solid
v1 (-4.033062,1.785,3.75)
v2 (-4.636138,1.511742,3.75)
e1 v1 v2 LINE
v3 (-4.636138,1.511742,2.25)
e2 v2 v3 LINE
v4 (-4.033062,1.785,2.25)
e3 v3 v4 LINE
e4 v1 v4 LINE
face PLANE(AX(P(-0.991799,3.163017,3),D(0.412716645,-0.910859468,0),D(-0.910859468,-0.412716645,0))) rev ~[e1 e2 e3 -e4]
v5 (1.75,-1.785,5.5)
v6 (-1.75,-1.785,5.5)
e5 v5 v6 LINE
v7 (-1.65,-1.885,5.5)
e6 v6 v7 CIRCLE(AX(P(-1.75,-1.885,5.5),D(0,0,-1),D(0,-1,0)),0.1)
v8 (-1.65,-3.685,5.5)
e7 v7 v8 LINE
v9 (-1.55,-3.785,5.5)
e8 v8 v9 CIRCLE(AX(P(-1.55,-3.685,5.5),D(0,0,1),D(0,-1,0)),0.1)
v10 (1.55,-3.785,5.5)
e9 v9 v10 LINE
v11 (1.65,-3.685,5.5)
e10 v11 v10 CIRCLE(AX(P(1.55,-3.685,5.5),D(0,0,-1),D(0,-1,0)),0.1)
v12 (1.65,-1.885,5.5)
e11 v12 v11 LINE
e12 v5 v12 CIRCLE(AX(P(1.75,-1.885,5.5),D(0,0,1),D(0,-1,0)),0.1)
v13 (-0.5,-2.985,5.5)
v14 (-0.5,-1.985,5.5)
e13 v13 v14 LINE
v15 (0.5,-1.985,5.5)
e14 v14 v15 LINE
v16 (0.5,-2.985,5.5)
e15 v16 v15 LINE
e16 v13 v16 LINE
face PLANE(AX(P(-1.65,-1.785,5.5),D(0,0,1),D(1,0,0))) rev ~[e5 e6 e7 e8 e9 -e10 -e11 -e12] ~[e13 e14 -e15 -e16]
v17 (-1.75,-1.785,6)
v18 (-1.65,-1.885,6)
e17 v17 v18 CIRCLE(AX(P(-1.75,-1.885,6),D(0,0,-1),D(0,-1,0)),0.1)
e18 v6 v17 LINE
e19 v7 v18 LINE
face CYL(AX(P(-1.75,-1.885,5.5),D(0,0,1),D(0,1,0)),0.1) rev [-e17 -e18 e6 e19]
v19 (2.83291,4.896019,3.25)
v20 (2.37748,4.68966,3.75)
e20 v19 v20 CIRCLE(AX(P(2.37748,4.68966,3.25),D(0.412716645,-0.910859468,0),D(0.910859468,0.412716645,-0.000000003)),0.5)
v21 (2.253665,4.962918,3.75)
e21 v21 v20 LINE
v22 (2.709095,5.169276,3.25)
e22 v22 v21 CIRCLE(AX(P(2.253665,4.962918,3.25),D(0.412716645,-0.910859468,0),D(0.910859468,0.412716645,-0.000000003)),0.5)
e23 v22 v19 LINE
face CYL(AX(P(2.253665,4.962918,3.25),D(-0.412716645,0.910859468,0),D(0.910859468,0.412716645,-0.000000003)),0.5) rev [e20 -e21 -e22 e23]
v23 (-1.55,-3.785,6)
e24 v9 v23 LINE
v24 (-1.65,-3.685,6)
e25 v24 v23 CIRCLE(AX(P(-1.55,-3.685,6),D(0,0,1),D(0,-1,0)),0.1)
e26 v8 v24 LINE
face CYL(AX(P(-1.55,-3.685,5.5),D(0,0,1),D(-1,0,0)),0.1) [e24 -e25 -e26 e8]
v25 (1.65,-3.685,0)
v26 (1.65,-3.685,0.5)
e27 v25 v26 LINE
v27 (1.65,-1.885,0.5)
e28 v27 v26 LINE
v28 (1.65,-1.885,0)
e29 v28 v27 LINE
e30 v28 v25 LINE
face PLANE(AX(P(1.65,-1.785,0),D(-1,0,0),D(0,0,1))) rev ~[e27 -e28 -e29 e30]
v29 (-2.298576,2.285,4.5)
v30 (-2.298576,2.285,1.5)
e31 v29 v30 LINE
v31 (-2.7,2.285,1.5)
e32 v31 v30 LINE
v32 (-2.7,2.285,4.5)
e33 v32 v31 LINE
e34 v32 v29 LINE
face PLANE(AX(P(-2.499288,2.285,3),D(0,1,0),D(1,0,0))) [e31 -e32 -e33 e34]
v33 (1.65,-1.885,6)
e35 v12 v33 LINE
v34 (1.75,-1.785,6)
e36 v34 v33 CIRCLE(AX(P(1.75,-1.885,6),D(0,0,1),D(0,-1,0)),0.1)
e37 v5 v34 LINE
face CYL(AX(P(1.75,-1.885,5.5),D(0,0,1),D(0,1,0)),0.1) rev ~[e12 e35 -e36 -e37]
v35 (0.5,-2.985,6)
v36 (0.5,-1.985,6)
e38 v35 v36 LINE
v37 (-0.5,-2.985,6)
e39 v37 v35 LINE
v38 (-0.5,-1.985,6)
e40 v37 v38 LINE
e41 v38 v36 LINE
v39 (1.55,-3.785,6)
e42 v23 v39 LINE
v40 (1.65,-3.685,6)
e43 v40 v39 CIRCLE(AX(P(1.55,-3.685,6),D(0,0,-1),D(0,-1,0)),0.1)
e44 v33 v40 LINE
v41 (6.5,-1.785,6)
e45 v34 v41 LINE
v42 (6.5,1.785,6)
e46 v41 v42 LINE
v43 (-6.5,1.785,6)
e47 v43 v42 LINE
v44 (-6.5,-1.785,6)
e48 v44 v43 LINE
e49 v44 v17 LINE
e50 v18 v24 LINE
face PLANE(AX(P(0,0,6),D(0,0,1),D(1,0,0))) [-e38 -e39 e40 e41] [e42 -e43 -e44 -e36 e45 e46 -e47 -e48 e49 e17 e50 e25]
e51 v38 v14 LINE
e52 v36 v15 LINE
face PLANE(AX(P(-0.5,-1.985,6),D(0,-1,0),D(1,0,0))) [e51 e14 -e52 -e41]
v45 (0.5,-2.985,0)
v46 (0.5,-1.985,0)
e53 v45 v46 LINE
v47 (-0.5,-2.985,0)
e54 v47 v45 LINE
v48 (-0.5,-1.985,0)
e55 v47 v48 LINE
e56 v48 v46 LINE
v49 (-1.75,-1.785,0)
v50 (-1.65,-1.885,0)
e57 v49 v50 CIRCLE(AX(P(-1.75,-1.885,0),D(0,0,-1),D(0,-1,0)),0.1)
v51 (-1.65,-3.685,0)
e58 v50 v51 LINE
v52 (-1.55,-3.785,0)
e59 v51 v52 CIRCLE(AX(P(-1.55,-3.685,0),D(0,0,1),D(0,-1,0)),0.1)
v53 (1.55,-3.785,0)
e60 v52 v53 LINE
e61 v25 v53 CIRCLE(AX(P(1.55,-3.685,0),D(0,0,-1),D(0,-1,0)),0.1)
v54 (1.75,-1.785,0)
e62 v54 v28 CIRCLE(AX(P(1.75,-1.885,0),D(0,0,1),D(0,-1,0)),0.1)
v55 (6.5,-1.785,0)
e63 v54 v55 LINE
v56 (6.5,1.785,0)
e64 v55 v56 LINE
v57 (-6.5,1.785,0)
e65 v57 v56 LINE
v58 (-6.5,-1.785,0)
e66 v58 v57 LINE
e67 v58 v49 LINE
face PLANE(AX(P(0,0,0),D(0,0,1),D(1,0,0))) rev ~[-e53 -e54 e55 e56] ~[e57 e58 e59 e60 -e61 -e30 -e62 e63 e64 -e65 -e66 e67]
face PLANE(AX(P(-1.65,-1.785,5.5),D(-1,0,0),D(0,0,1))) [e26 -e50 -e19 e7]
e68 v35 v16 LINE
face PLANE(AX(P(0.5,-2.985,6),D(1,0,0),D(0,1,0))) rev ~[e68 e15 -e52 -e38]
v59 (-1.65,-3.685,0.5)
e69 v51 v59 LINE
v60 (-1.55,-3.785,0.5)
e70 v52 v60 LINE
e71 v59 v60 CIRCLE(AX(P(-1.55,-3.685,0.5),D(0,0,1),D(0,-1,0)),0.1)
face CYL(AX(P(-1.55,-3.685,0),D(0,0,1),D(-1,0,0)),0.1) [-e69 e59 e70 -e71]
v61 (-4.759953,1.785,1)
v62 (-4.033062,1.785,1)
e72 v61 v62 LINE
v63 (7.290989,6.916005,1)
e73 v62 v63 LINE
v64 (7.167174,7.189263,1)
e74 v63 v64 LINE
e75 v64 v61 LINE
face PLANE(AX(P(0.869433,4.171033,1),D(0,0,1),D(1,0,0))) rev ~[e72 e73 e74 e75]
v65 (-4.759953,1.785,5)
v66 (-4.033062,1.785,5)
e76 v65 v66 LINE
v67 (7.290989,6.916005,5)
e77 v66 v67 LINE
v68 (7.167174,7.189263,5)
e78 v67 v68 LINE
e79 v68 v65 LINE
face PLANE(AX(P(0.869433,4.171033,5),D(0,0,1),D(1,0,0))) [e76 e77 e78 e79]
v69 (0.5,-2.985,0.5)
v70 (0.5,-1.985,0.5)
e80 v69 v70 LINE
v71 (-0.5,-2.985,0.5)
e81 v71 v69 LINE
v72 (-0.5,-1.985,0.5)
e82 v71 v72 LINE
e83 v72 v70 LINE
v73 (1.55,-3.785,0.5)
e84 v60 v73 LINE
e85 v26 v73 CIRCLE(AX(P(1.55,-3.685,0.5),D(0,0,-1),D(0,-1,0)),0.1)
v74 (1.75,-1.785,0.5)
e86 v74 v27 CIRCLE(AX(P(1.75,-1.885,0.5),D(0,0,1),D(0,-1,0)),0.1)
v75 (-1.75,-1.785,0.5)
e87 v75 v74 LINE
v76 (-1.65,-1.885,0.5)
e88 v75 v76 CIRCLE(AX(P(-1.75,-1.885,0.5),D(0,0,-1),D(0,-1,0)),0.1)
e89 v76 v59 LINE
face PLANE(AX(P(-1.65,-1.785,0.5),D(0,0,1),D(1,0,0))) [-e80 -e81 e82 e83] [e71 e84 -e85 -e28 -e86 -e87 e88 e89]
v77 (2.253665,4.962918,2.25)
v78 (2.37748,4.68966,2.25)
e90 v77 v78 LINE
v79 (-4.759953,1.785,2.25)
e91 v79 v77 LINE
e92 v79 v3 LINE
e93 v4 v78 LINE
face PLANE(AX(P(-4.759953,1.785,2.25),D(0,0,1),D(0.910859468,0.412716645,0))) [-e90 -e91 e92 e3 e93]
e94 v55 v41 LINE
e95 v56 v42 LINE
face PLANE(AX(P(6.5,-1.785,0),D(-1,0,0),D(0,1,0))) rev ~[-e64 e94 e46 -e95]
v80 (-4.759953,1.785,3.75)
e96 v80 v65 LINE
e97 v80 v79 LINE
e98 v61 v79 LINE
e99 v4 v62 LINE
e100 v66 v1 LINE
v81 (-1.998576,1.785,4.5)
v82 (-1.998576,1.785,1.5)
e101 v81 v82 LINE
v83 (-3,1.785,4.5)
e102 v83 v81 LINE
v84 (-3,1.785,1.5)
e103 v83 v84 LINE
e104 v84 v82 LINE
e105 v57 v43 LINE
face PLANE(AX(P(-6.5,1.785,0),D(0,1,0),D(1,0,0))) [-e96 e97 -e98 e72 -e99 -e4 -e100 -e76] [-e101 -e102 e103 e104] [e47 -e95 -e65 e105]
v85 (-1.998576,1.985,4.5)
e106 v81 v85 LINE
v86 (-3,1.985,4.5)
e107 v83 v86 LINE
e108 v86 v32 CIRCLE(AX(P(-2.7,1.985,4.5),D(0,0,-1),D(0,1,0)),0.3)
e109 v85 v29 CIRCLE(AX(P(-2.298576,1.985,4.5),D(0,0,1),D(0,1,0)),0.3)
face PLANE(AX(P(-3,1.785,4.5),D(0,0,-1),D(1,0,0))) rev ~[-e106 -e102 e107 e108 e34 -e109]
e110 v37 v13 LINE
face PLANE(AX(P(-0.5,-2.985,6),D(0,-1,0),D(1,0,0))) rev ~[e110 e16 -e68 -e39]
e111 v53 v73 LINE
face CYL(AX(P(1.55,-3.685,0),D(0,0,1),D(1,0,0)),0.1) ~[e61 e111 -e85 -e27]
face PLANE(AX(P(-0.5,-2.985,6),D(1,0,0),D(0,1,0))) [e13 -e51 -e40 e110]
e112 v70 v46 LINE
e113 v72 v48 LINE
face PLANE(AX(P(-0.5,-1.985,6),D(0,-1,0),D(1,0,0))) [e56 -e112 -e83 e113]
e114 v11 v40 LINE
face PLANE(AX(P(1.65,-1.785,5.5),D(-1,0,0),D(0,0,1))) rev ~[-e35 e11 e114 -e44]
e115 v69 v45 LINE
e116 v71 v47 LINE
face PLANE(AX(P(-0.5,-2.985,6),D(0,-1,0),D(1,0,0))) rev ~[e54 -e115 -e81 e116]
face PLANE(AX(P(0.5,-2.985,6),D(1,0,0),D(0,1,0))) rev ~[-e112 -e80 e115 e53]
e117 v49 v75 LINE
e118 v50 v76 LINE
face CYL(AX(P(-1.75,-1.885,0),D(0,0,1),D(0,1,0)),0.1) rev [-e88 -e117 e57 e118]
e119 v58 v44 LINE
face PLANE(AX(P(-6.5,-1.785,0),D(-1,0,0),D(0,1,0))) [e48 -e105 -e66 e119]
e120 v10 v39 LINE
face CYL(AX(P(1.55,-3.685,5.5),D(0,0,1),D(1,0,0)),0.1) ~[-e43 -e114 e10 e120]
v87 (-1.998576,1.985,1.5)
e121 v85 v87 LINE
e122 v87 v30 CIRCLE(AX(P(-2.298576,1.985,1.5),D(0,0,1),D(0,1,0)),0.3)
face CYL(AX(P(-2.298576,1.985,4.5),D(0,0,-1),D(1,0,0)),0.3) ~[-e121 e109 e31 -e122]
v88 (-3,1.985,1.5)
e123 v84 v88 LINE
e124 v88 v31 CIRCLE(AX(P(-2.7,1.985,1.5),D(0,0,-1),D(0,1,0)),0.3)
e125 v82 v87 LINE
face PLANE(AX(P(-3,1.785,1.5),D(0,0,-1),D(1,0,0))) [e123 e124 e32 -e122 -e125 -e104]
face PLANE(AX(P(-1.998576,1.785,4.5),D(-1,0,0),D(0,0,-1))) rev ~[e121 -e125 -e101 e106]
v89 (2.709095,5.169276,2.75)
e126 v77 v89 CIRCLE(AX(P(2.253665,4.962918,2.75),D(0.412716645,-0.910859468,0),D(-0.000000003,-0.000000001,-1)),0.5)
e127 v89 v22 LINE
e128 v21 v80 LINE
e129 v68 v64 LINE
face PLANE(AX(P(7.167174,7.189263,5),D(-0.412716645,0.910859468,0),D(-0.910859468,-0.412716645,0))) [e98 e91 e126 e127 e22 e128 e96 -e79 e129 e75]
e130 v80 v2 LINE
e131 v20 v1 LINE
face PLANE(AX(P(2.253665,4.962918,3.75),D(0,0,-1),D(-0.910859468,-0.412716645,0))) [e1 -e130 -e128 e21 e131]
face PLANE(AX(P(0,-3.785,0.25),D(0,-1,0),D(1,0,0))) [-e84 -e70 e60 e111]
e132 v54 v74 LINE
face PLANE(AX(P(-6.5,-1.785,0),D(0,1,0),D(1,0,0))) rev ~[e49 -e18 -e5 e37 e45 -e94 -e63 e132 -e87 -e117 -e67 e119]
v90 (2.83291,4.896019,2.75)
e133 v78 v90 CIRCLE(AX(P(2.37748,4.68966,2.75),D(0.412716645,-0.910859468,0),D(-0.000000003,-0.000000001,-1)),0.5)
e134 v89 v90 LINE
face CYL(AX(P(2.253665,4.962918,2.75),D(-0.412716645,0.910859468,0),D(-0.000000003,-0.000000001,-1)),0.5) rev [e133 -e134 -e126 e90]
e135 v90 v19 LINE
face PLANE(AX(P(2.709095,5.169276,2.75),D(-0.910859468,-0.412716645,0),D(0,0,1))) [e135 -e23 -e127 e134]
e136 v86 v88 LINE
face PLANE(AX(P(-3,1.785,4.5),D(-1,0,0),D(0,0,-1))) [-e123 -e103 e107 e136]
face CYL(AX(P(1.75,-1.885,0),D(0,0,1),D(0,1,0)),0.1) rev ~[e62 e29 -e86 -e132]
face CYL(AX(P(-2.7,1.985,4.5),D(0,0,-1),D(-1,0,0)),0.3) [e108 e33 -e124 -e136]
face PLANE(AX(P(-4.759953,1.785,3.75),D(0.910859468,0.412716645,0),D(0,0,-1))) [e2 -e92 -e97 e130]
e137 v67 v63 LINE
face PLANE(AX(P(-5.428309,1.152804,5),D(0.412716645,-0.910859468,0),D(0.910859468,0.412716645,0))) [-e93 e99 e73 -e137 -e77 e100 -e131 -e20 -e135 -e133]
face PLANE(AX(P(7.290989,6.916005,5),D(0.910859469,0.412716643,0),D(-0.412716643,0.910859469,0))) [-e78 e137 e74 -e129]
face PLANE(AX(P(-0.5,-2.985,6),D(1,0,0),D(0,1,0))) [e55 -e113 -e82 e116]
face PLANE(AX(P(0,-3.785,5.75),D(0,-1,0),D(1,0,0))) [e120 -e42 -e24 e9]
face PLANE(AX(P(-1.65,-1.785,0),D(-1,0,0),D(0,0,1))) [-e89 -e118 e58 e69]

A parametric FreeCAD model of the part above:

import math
import FreeCAD as App
import Part
import Sketcher
Q = App.Units.Quantity


def edges_at(feature, points):
    """Names of the edges that pass closest to the given points."""
    edges = feature.Shape.Edges
    near = lambda p: min(range(len(edges)), key=lambda i: edges[i].distToShape(Part.Vertex(*p))[0])
    return sorted({f"Edge{near(p) + 1}" for p in points})

doc = App.newDocument("Part")
body = doc.addObject("PartDesign::Body", "Body")

# Sketch on XY plane
sketch1 = body.newObject("Sketcher::SketchObject", "Sketch")
sketch1.AttachmentSupport = (doc.getObject("XY_Plane"), [""])
sketch1.MapMode = "FlatFace"
sketch1.addGeometry([
    Part.LineSegment(App.Vector(-6.5, 1.8, 0), App.Vector(-6.5, -1.8, 0)),
    Part.LineSegment(App.Vector(-6.5, -1.8, 0), App.Vector(6.5, -1.8, 0)),
    Part.LineSegment(App.Vector(6.5, -1.8, 0), App.Vector(6.5, 1.8, 0)),
    Part.LineSegment(App.Vector(6.5, 1.8, 0), App.Vector(-6.5, 1.8, 0)),
], False)
sketch1.addConstraint([
    Sketcher.Constraint("Coincident", 0, 2, 1, 1),
    Sketcher.Constraint("Coincident", 1, 2, 2, 1),
    Sketcher.Constraint("Coincident", 2, 2, 3, 1),
    Sketcher.Constraint("Coincident", 3, 2, 0, 1),
    Sketcher.Constraint("Vertical", 0),
    Sketcher.Constraint("Horizontal", 1),
    Sketcher.Constraint("Vertical", 2),
    Sketcher.Constraint("Horizontal", 3),
    Sketcher.Constraint("Symmetric", 0, 2, 2, 2, -1, 1),
    Sketcher.Constraint("DistanceX", 1, 1, 1, 2, Q("13 mm")),
    Sketcher.Constraint("DistanceY", 0, 2, 0, 1, Q("3.57 mm")),
])
pad1 = body.newObject("PartDesign::Pad", "Pad")
pad1.Profile = sketch1
pad1.Length = 6

# Sketch on XZ plane
sketch2 = body.newObject("Sketcher::SketchObject", "Sketch001")
sketch2.AttachmentSupport = (doc.getObject("XZ_Plane"), [""])
sketch2.MapMode = "FlatFace"
sketch2.AttachmentOffset = App.Placement(App.Vector(0, 0, 1.785), App.Rotation())
sketch2.addGeometry([
    Part.LineSegment(App.Vector(-1.6, 6, 0), App.Vector(-1.6, 5.5, 0)),  # 0
    Part.LineSegment(App.Vector(-1.6, 5.5, 0), App.Vector(1.6, 5.5, 0)),  # 1
    Part.LineSegment(App.Vector(1.6, 5.5, 0), App.Vector(1.6, 6, 0)),  # 2
    Part.LineSegment(App.Vector(1.6, 6, 0), App.Vector(-1.6, 6, 0)),  # 3
    Part.LineSegment(App.Vector(-1.6, 0.5, 0), App.Vector(-1.6, 0, 0)),  # 4
    Part.LineSegment(App.Vector(-1.6, 0, 0), App.Vector(1.6, 0, 0)),  # 5
    Part.LineSegment(App.Vector(1.6, 0, 0), App.Vector(1.6, 0.5, 0)),  # 6
    Part.LineSegment(App.Vector(1.6, 0.5, 0), App.Vector(-1.6, 0.5, 0)),  # 7
], False)
sketch2.addConstraint([
    Sketcher.Constraint("Coincident", 0, 2, 1, 1),
    Sketcher.Constraint("Coincident", 1, 2, 2, 1),
    Sketcher.Constraint("Coincident", 2, 2, 3, 1),
    Sketcher.Constraint("Coincident", 3, 2, 0, 1),
    Sketcher.Constraint("Coincident", 4, 2, 5, 1),
    Sketcher.Constraint("Coincident", 5, 2, 6, 1),
    Sketcher.Constraint("Coincident", 6, 2, 7, 1),
    Sketcher.Constraint("Coincident", 7, 2, 4, 1),
    Sketcher.Constraint("Vertical", 0),
    Sketcher.Constraint("Horizontal", 1),
    Sketcher.Constraint("Vertical", 2),
    Sketcher.Constraint("Horizontal", 3),
    Sketcher.Constraint("Vertical", 4),
    Sketcher.Constraint("Horizontal", 5),
    Sketcher.Constraint("Vertical", 6),
    Sketcher.Constraint("Horizontal", 7),
    Sketcher.Constraint("Symmetric", 4, 2, 5, 2, -1, 1),
    Sketcher.Constraint("Vertical", 3, 2, 4, 2),
    Sketcher.Constraint("Vertical", 2, 2, 5, 2),
    Sketcher.Constraint("Equal", 2, 4),
    Sketcher.Constraint("DistanceX", 1, 1, 1, 2, Q("3.3 mm")),
    Sketcher.Constraint("DistanceY", 0, 2, 0, 1, Q("0.5 mm")),
    Sketcher.Constraint("DistanceY", -1, 1, 2, 2, Q("6 mm")),
])
pad2 = body.newObject("PartDesign::Pad", "Pad001")
pad2.Profile = sketch2
pad2.Length = 2
doc.recompute()

fillet = body.newObject("PartDesign::Fillet", "Fillet")
fillet.Base = (pad2, edges_at(pad2, [
    (1.65, -3.785, 0.25),
    (-1.65, -3.785, 0.25),
    (-1.65, -3.785, 5.75),
    (1.65, -3.785, 5.75),
    (-1.65, -1.785, 0.25),
    (1.65, -1.785, 0.25),
    (-1.65, -1.785, 5.75),
    (1.65, -1.785, 5.75),
]))
fillet.Radius = 0.1

# Sketch on XY plane
sketch3 = body.newObject("Sketcher::SketchObject", "Sketch002")
sketch3.AttachmentSupport = (doc.getObject("XY_Plane"), [""])
sketch3.MapMode = "FlatFace"
sketch3.AttachmentOffset = App.Placement(App.Vector(0, 0, 6), App.Rotation())
sketch3.addGeometry([
    Part.LineSegment(App.Vector(-0.5, -2, 0), App.Vector(-0.5, -3, 0)),
    Part.LineSegment(App.Vector(-0.5, -3, 0), App.Vector(0.5, -3, 0)),
    Part.LineSegment(App.Vector(0.5, -3, 0), App.Vector(0.5, -2, 0)),
    Part.LineSegment(App.Vector(0.5, -2, 0), App.Vector(-0.5, -2, 0)),
], False)
sketch3.addConstraint([
    Sketcher.Constraint("Coincident", 0, 2, 1, 1),
    Sketcher.Constraint("Coincident", 1, 2, 2, 1),
    Sketcher.Constraint("Coincident", 2, 2, 3, 1),
    Sketcher.Constraint("Coincident", 3, 2, 0, 1),
    Sketcher.Constraint("Vertical", 0),
    Sketcher.Constraint("Horizontal", 1),
    Sketcher.Constraint("Vertical", 2),
    Sketcher.Constraint("Horizontal", 3),
    Sketcher.Constraint("Equal", 3, 0),
    Sketcher.Constraint("DistanceX", 1, 1, 1, 2, Q("1 mm")),
    Sketcher.Constraint("DistanceX", 0, 2, -1, 1, Q("0.5 mm")),
    Sketcher.Constraint("DistanceY", 0, 2, -1, 1, Q("2.985 mm")),
])
pocket1 = body.newObject("PartDesign::Pocket", "Pocket")
pocket1.Profile = sketch3
pocket1.Type = "ThroughAll"

# Sketch on XZ plane
sketch4 = body.newObject("Sketcher::SketchObject", "Sketch003")
sketch4.AttachmentSupport = (doc.getObject("XZ_Plane"), [""])
sketch4.MapMode = "FlatFace"
sketch4.AttachmentOffset = App.Placement(App.Vector(0, 0, -1.785), App.Rotation())
sketch4.addGeometry([
    Part.LineSegment(App.Vector(-3, 1.5, 0), App.Vector(-3, 4.5, 0)),
    Part.LineSegment(App.Vector(-3, 4.5, 0), App.Vector(-2, 4.5, 0)),
    Part.LineSegment(App.Vector(-2, 4.5, 0), App.Vector(-2, 1.5, 0)),
    Part.LineSegment(App.Vector(-2, 1.5, 0), App.Vector(-3, 1.5, 0)),
], False)
sketch4.addConstraint([
    Sketcher.Constraint("Coincident", 0, 2, 1, 1),
    Sketcher.Constraint("Coincident", 1, 2, 2, 1),
    Sketcher.Constraint("Coincident", 2, 2, 3, 1),
    Sketcher.Constraint("Coincident", 3, 2, 0, 1),
    Sketcher.Constraint("Vertical", 0),
    Sketcher.Constraint("Horizontal", 1),
    Sketcher.Constraint("Vertical", 2),
    Sketcher.Constraint("Horizontal", 3),
    Sketcher.Constraint("DistanceY", 0, 1, 0, 2, Q("3 mm")),
    Sketcher.Constraint("DistanceX", 0, 2, -1, 1, Q("3 mm")),
    Sketcher.Constraint("DistanceY", -1, 1, 0, 2, Q("4.5 mm")),
    Sketcher.Constraint("DistanceX", 1, 1, 1, 2, Q("1.001424 mm")),
])
pad3 = body.newObject("PartDesign::Pad", "Pad002")
pad3.Profile = sketch4
pad3.Length = 0.5
pad3.Reversed = True
doc.recompute()

fillet2 = body.newObject("PartDesign::Fillet", "Fillet001")
fillet2.Base = (pad3, edges_at(pad3, [(-3, 2.285, 3), (-1.999, 2.285, 3)]))
fillet2.Radius = 0.3

# Sketch on XY plane
sketch5 = body.newObject("Sketcher::SketchObject", "Sketch004")
sketch5.AttachmentSupport = (doc.getObject("XY_Plane"), [""])
sketch5.MapMode = "FlatFace"
sketch5.AttachmentOffset = App.Placement(App.Vector(0, 0, 5), App.Rotation())
sketch5.addGeometry([
    Part.LineSegment(App.Vector(-5.43, 1.15, 0), App.Vector(7.29, 6.92, 0)),
    Part.LineSegment(App.Vector(7.29, 6.92, 0), App.Vector(7.17, 7.19, 0)),
    Part.LineSegment(App.Vector(7.17, 7.19, 0), App.Vector(-5.55, 1.43, 0)),
    Part.LineSegment(App.Vector(-5.55, 1.43, 0), App.Vector(-5.43, 1.15, 0)),
], False)
sketch5.addConstraint([
    Sketcher.Constraint("Coincident", 0, 2, 1, 1),
    Sketcher.Constraint("Coincident", 1, 2, 2, 1),
    Sketcher.Constraint("Coincident", 2, 2, 3, 1),
    Sketcher.Constraint("Coincident", 3, 2, 0, 1),
    Sketcher.Constraint("Perpendicular", 0, 1),
    Sketcher.Constraint("Perpendicular", 1, 2),
    Sketcher.Constraint("Perpendicular", 2, 3),
    Sketcher.Constraint("Distance", 1, Q("0.3 mm")),
    Sketcher.Constraint("DistanceX", 2, 2, 1, 2, Q("12.719298 mm")),
    Sketcher.Constraint("DistanceY", 2, 2, 1, 2, Q("5.763201 mm")),
    Sketcher.Constraint("DistanceX", -1, 1, 0, 2, Q("7.290989 mm")),
    Sketcher.Constraint("DistanceY", -1, 1, 2, 2, Q("1.426062 mm")),
])
pad4 = body.newObject("PartDesign::Pad", "Pad003")
pad4.Profile = sketch5
pad4.Length = 4
pad4.Reversed = True

# Sketch on an angled plane
sketch6 = body.newObject("Sketcher::SketchObject", "Sketch005")
sketch6.Placement = App.Placement(App.Vector(-1.481816, 3.270346, 0), App.Rotation(App.Vector(0.910859468, 0.412716645, 0), App.Vector(0, 0, -1), App.Vector(-0.412716645, 0.910859468, 0), "ZXY"))
sketch6.addGeometry([
    Part.LineSegment(App.Vector(4.1, -2.25, 0), App.Vector(-3.6, -2.25, 0)),  # 0
    Part.LineSegment(App.Vector(-3.6, -2.25, 0), App.Vector(-3.6, -3.75, 0)),  # 1
    Part.LineSegment(App.Vector(-3.6, -3.75, 0), App.Vector(4.1, -3.75, 0)),  # 2
    Part.ArcOfCircle(Part.Circle(App.Vector(4.1, -3.25, 0), App.Vector(0, 0, 1), 0.5), math.radians(-90), math.radians(0)),  # 3
    Part.LineSegment(App.Vector(4.6, -3.25, 0), App.Vector(4.6, -2.75, 0)),  # 4
    Part.ArcOfCircle(Part.Circle(App.Vector(4.1, -2.75, 0), App.Vector(0, 0, 1), 0.5), math.radians(0), math.radians(90)),  # 5
], False)
sketch6.addConstraint([
    Sketcher.Constraint("Coincident", 0, 2, 1, 1),
    Sketcher.Constraint("Coincident", 1, 2, 2, 1),
    Sketcher.Constraint("Tangent", 2, 2, 3, 1),
    Sketcher.Constraint("Tangent", 3, 2, 4, 1),
    Sketcher.Constraint("Tangent", 4, 2, 5, 1),
    Sketcher.Constraint("Tangent", 5, 2, 0, 1),
    Sketcher.Constraint("Horizontal", 0),
    Sketcher.Constraint("Vertical", 1),
    Sketcher.Constraint("Horizontal", 2),
    Sketcher.Constraint("Vertical", 4),
    Sketcher.Constraint("Equal", 3, 5),
    Sketcher.Constraint("Radius", 3, Q("0.5 mm")),
    Sketcher.Constraint("DistanceX", 0, 2, 0, 1, Q("7.7 mm")),
    Sketcher.Constraint("DistanceY", 1, 2, 1, 1, Q("1.5 mm")),
    Sketcher.Constraint("DistanceY", 3, 3, -1, 1, Q("3.25 mm")),
    Sketcher.Constraint("DistanceX", -1, 1, 3, 3, Q("4.101051 mm")),
])
pocket2 = body.newObject("PartDesign::Pocket", "Pocket001")
pocket2.Profile = sketch6
pocket2.Length = 0.3

doc.recompute()
